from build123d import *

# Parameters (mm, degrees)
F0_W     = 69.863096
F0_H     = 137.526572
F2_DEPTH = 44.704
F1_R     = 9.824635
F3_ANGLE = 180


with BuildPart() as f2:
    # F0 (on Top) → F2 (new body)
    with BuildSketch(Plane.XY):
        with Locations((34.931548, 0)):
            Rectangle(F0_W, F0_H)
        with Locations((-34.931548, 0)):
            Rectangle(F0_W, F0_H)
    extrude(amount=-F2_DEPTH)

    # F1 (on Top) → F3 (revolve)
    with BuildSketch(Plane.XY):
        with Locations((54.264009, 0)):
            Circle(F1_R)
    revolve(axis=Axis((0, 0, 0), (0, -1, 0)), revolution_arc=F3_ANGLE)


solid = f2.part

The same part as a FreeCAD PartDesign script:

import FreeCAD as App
import Part
import Sketcher
from FreeCAD import Vector
Q = App.Units.Quantity

doc = App.newDocument("Part")
params = doc.addObject("Spreadsheet::Sheet", "Params")
for row, (alias, value) in enumerate([
    ("pad1_length", "1.76 in"),
    ("revolution_angle", "180 deg"),
], start=1):
    params.set(f"A{row}", alias)
    params.set(f"B{row}", "=" + value)
    params.setAlias(f"B{row}", alias)

body = doc.addObject("PartDesign::Body", "Body")

# Sketch on XY plane
sketch1 = body.newObject("Sketcher::SketchObject", "Sketch")
sketch1.AttachmentSupport = (doc.getObject("XY_Plane"), [""])
sketch1.MapMode = "FlatFace"
sketch1.addGeometry([
    Part.LineSegment(Vector(70, -69, 0), Vector(70, 69, 0)),
    Part.LineSegment(Vector(70, 69, 0), Vector(-70, 69, 0)),
    Part.LineSegment(Vector(-70, 69, 0), Vector(-70, -69, 0)),
    Part.LineSegment(Vector(-70, -69, 0), Vector(70, -69, 0)),
], False)
sketch1.addConstraint([
    Sketcher.Constraint("Coincident", 0, 2, 1, 1),
    Sketcher.Constraint("Coincident", 1, 2, 2, 1),
    Sketcher.Constraint("Coincident", 2, 2, 3, 1),
    Sketcher.Constraint("Coincident", 3, 2, 0, 1),
    Sketcher.Constraint("Vertical", 0),
    Sketcher.Constraint("Horizontal", 1),
    Sketcher.Constraint("Vertical", 2),
    Sketcher.Constraint("Horizontal", 3),
    Sketcher.Constraint("Symmetric", 0, 2, 2, 2, -1, 1),
    Sketcher.Constraint("DistanceX", 1, 2, 1, 1, Q("139.726192 mm")),
    Sketcher.Constraint("DistanceY", 0, 1, 0, 2, Q("137.526572 mm")),
])
pad1 = body.newObject("PartDesign::Pad", "Pad")
pad1.Profile = sketch1
pad1.setExpression("Length", "Params.pad1_length")
pad1.Reversed = True

# Sketch on XY plane
sketch2 = body.newObject("Sketcher::SketchObject", "Sketch001")
sketch2.AttachmentSupport = (doc.getObject("XY_Plane"), [""])
sketch2.MapMode = "FlatFace"
sketch2.addGeometry(Part.Circle(Vector(54, 0, 0), Vector(0, 0, 1), 10), False)
sketch2.addConstraint([
    Sketcher.Constraint("PointOnObject", 0, 3, -1),
    Sketcher.Constraint("Diameter", 0, Q("19.64927 mm")),
    Sketcher.Constraint("DistanceX", -1, 1, 0, 3, Q("54.264009 mm")),
])
revolution = body.newObject("PartDesign::Revolution", "Revolution")
revolution.Profile = sketch2
revolution.ReferenceAxis = (sketch2, ["V_Axis"])
revolution.setExpression("Angle", "Params.revolution_angle")
revolution.Reversed = True

doc.recompute()
